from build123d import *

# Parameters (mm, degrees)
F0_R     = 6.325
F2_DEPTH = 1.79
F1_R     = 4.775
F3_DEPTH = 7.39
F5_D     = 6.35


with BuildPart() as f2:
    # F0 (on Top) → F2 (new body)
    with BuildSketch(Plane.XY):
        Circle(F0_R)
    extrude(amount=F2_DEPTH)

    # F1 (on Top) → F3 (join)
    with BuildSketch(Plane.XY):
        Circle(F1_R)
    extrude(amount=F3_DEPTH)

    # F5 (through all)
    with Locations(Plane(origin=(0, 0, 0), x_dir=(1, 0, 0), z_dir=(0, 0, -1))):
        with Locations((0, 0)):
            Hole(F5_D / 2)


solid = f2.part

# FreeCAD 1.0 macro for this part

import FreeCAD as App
import Part
import Sketcher
from FreeCAD import Vector
Q = App.Units.Quantity

doc = App.newDocument("Part")
body = doc.addObject("PartDesign::Body", "Body")

sketch1 = body.newObject("Sketcher::SketchObject", "Sketch")
sketch1.AttachmentSupport = (doc.getObject("XY_Plane"), [""])
sketch1.MapMode = "FlatFace"
sketch1.addGeometry(Part.Circle(Vector(0, 0, 0), Vector(0, 0, 1), 6), False)
sketch1.addConstraint([
    Sketcher.Constraint("Coincident", 0, 3, -1, 1),
    Sketcher.Constraint("Diameter", 0, 12.65),
])
pad1 = body.newObject("PartDesign::Pad", "Pad")
pad1.Profile = sketch1
pad1.Length = 1.79

sketch2 = body.newObject("Sketcher::SketchObject", "Sketch001")
sketch2.AttachmentSupport = (doc.getObject("XY_Plane"), [""])
sketch2.MapMode = "FlatFace"
sketch2.addGeometry(Part.Circle(Vector(0, 0, 0), Vector(0, 0, 1), 4.8), False)
sketch2.addConstraint([
    Sketcher.Constraint("Coincident", 0, 3, -1, 1),
    Sketcher.Constraint("Diameter", 0, 9.55),
])
pad2 = body.newObject("PartDesign::Pad", "Pad001")
pad2.Profile = sketch2
pad2.Length = 7.39

sketch3 = body.newObject("Sketcher::SketchObject", "Sketch002")
sketch3.AttachmentSupport = (doc.getObject("XY_Plane"), [""])
sketch3.MapMode = "FlatFace"
sketch3.addGeometry(Part.Circle(Vector(0, 0, 0), Vector(0, 0, 1), 3.2), False)
sketch3.addConstraint([
    Sketcher.Constraint("Coincident", 0, 3, -1, 1),
    Sketcher.Constraint("Diameter", 0, Q("0.25 in")),
])
doc.recompute()
hole = body.newObject("PartDesign::Hole", "Hole")
hole.Profile = sketch3
hole.ThreadType = "None"
hole.Diameter = Q("0.25 in")
hole.DepthType = "ThroughAll"
hole.Reversed = True

doc.recompute()
